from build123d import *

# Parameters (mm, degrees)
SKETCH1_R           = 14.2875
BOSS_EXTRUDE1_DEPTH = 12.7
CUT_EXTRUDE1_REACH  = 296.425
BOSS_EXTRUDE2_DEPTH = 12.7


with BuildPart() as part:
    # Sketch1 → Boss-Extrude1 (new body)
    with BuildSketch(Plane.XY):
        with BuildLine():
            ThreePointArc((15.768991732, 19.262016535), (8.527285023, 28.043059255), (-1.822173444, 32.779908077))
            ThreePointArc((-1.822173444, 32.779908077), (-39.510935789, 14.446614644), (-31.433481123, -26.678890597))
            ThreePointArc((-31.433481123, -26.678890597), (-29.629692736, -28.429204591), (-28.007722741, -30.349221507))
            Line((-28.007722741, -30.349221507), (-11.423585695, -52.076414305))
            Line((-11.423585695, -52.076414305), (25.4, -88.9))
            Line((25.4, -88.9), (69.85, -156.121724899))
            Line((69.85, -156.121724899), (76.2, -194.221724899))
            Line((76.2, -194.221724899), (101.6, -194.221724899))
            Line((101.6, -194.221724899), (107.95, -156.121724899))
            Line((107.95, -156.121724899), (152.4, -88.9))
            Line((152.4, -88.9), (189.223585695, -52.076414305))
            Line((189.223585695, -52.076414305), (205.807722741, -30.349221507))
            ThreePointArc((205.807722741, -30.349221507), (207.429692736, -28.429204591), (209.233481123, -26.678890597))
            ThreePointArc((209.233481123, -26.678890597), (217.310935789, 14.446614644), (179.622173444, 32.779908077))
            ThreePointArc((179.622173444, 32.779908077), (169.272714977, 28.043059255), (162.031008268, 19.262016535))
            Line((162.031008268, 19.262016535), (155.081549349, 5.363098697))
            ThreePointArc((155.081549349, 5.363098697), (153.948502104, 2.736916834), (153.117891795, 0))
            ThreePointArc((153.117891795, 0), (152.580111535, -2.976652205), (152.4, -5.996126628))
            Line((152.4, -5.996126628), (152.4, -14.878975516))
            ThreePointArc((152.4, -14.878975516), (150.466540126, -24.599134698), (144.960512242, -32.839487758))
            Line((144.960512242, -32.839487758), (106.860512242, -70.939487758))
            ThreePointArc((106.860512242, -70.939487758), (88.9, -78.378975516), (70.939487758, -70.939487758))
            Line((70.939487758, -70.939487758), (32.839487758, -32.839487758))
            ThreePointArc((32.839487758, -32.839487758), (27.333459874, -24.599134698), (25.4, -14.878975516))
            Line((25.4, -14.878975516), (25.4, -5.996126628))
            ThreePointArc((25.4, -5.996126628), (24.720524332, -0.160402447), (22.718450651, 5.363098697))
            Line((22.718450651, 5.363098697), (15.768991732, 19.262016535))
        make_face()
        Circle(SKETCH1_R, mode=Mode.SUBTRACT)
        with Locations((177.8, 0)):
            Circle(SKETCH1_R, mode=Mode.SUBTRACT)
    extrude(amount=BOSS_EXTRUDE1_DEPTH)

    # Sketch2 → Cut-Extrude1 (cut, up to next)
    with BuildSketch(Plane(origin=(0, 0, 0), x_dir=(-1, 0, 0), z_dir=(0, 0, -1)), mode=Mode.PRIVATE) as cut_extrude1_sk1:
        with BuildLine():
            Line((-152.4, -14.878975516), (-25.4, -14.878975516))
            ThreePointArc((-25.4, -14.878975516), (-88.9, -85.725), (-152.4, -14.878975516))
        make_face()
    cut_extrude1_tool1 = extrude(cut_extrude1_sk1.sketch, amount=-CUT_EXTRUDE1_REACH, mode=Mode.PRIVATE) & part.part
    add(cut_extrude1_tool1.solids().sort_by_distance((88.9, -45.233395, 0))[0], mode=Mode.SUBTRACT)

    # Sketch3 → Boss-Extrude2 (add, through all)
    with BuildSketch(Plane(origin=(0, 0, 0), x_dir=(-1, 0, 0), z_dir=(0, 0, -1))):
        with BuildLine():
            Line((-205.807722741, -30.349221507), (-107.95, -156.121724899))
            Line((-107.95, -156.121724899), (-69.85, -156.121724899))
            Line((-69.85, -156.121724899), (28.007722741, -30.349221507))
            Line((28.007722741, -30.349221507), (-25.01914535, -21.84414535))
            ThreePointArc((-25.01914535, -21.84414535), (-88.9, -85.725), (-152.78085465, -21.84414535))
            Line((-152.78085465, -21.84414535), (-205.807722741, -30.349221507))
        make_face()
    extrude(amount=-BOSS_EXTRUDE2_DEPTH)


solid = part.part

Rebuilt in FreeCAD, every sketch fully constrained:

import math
import FreeCAD as App
import Part
import Sketcher
Q = App.Units.Quantity

doc = App.newDocument("Part")
body = doc.addObject("PartDesign::Body", "Body")

sketch1 = body.newObject("Sketcher::SketchObject", "Sketch")
sketch1.AttachmentSupport = (doc.getObject("XY_Plane"), [""])
sketch1.MapMode = "FlatFace"
sketch1.addGeometry(Part.ArcOfCircle(Part.Circle(App.Vector(-7, 8, 0), App.Vector(0, 0, 1), 25), math.radians(27), math.radians(78)), False)
sketch1.addGeometry(Part.ArcOfCircle(Part.Circle(App.Vector(-9, -1, 0), App.Vector(0, 0, 1), 34), math.radians(78), math.radians(229)), False)
sketch1.addGeometry(Part.ArcOfCircle(Part.Circle(App.Vector(-48, -46, 0), App.Vector(0, 0, 1), 25), math.radians(37.35), math.radians(48.7)), False)
sketch1.addGeometry(Part.LineSegment(App.Vector(-28, -30, 0), App.Vector(-11, -52, 0)), False)
sketch1.addGeometry(Part.LineSegment(App.Vector(-11, -52, 0), App.Vector(25, -89, 0)), False)
sketch1.addGeometry(Part.LineSegment(App.Vector(25, -89, 0), App.Vector(70, -156, 0)), False)
sketch1.addGeometry(Part.LineSegment(App.Vector(70, -156, 0), App.Vector(76, -194, 0)), False)
sketch1.addGeometry(Part.LineSegment(App.Vector(76, -194, 0), App.Vector(102, -194, 0)), False)
sketch1.addGeometry(Part.LineSegment(App.Vector(102, -194, 0), App.Vector(108, -156, 0)), False)
sketch1.addGeometry(Part.LineSegment(App.Vector(108, -156, 0), App.Vector(152, -89, 0)), False)
sketch1.addGeometry(Part.LineSegment(App.Vector(152, -89, 0), App.Vector(189, -52, 0)), False)
sketch1.addGeometry(Part.LineSegment(App.Vector(189, -52, 0), App.Vector(206, -30, 0)), False)
sketch1.addGeometry(Part.ArcOfCircle(Part.Circle(App.Vector(226, -46, 0), App.Vector(0, 0, 1), 25), math.radians(131.3), math.radians(142.65)), False)
sketch1.addGeometry(Part.ArcOfCircle(Part.Circle(App.Vector(187, -1, 0), App.Vector(0, 0, 1), 34), math.radians(-49), math.radians(102)), False)
sketch1.addGeometry(Part.ArcOfCircle(Part.Circle(App.Vector(185, 8, 0), App.Vector(0, 0, 1), 25), math.radians(102), math.radians(153)), False)
sketch1.addGeometry(Part.LineSegment(App.Vector(162, 19, 0), App.Vector(155, 5, 0)), False)
sketch1.addGeometry(Part.ArcOfCircle(Part.Circle(App.Vector(178, -6, 0), App.Vector(0, 0, 1), 25), math.radians(153.43), math.radians(166.35)), False)
sketch1.addGeometry(Part.ArcOfCircle(Part.Circle(App.Vector(178, -6, 0), App.Vector(0, 0, 1), 25), math.radians(166.35), math.radians(180)), False)
sketch1.addGeometry(Part.LineSegment(App.Vector(152, -6, 0), App.Vector(152, -15, 0)), False)
sketch1.addGeometry(Part.ArcOfCircle(Part.Circle(App.Vector(127, -15, 0), App.Vector(0, 0, 1), 25), math.radians(-45), math.radians(0)), False)
sketch1.addGeometry(Part.LineSegment(App.Vector(145, -33, 0), App.Vector(107, -71, 0)), False)
sketch1.addGeometry(Part.ArcOfCircle(Part.Circle(App.Vector(89, -53, 0), App.Vector(0, 0, 1), 25), math.radians(-135), math.radians(-45)), False)
sketch1.addGeometry(Part.LineSegment(App.Vector(71, -71, 0), App.Vector(33, -33, 0)), False)
sketch1.addGeometry(Part.ArcOfCircle(Part.Circle(App.Vector(51, -15, 0), App.Vector(0, 0, 1), 25), math.radians(180), math.radians(225)), False)
sketch1.addGeometry(Part.LineSegment(App.Vector(25, -15, 0), App.Vector(25, -6, 0)), False)
sketch1.addGeometry(Part.ArcOfCircle(Part.Circle(App.Vector(0, -6, 0), App.Vector(0, 0, 1), 25), math.radians(0), math.radians(27)), False)
sketch1.addGeometry(Part.LineSegment(App.Vector(23, 5, 0), App.Vector(16, 19, 0)), False)
sketch1.addGeometry(Part.Circle(App.Vector(0, 0, 0), App.Vector(0, 0, 1), 14), False)
sketch1.addGeometry(Part.Circle(App.Vector(178, 0, 0), App.Vector(0, 0, 1), 14), False)
sketch1.addConstraint(Sketcher.Constraint("Tangent", 0, 2, 1, 1))
sketch1.addConstraint(Sketcher.Constraint("Tangent", 1, 2, 2, 2))
sketch1.addConstraint(Sketcher.Constraint("Tangent", 2, 1, 3, 1))
sketch1.addConstraint(Sketcher.Constraint("Coincident", 3, 2, 4, 1))
sketch1.addConstraint(Sketcher.Constraint("Coincident", 4, 2, 5, 1))
sketch1.addConstraint(Sketcher.Constraint("Coincident", 5, 2, 6, 1))
sketch1.addConstraint(Sketcher.Constraint("Coincident", 6, 2, 7, 1))
sketch1.addConstraint(Sketcher.Constraint("Coincident", 7, 2, 8, 1))
sketch1.addConstraint(Sketcher.Constraint("Coincident", 8, 2, 9, 1))
sketch1.addConstraint(Sketcher.Constraint("Coincident", 9, 2, 10, 1))
sketch1.addConstraint(Sketcher.Constraint("Coincident", 10, 2, 11, 1))
sketch1.addConstraint(Sketcher.Constraint("Tangent", 11, 2, 12, 2))
sketch1.addConstraint(Sketcher.Constraint("Tangent", 12, 1, 13, 1))
sketch1.addConstraint(Sketcher.Constraint("Tangent", 13, 2, 14, 1))
sketch1.addConstraint(Sketcher.Constraint("Tangent", 14, 2, 15, 1))
sketch1.addConstraint(Sketcher.Constraint("Tangent", 15, 2, 16, 1))
sketch1.addConstraint(Sketcher.Constraint("Tangent", 16, 2, 17, 1))
sketch1.addConstraint(Sketcher.Constraint("Tangent", 17, 2, 18, 1))
sketch1.addConstraint(Sketcher.Constraint("Tangent", 18, 2, 19, 2))
sketch1.addConstraint(Sketcher.Constraint("Tangent", 19, 1, 20, 1))
sketch1.addConstraint(Sketcher.Constraint("Tangent", 20, 2, 21, 2))
sketch1.addConstraint(Sketcher.Constraint("Tangent", 21, 1, 22, 1))
sketch1.addConstraint(Sketcher.Constraint("Tangent", 22, 2, 23, 2))
sketch1.addConstraint(Sketcher.Constraint("Tangent", 23, 1, 24, 1))
sketch1.addConstraint(Sketcher.Constraint("Tangent", 24, 2, 25, 1))
sketch1.addConstraint(Sketcher.Constraint("Tangent", 25, 2, 26, 1))
sketch1.addConstraint(Sketcher.Constraint("Tangent", 26, 2, 0, 1))
sketch1.addConstraint(Sketcher.Constraint("Horizontal", 7))
sketch1.addConstraint(Sketcher.Constraint("Vertical", 18))
sketch1.addConstraint(Sketcher.Constraint("Vertical", 24))
sketch1.addConstraint(Sketcher.Constraint("Coincident", 27, 3, -1, 1))
sketch1.addConstraint(Sketcher.Constraint("Equal", 0, 2))
sketch1.addConstraint(Sketcher.Constraint("Equal", 2, 12))
sketch1.addConstraint(Sketcher.Constraint("Equal", 1, 13))
sketch1.addConstraint(Sketcher.Constraint("Equal", 12, 14))
sketch1.addConstraint(Sketcher.Constraint("Equal", 14, 16))
sketch1.addConstraint(Sketcher.Constraint("Equal", 16, 17))
sketch1.addConstraint(Sketcher.Constraint("Equal", 17, 19))
sketch1.addConstraint(Sketcher.Constraint("Equal", 19, 21))
sketch1.addConstraint(Sketcher.Constraint("Equal", 21, 23))
sketch1.addConstraint(Sketcher.Constraint("Equal", 23, 25))
sketch1.addConstraint(Sketcher.Constraint("Equal", 27, 28))
sketch1.addConstraint(Sketcher.Constraint("PointOnObject", 25, 3, -2))
sketch1.addConstraint(Sketcher.Constraint("PointOnObject", 28, 3, -1))
sketch1.addConstraint(Sketcher.Constraint("PointOnObject", 16, 2, -1))
sketch1.addConstraint(Sketcher.Constraint("Perpendicular", 4, 10))
sketch1.addConstraint(Sketcher.Constraint("Parallel", 10, 20))
sketch1.addConstraint(Sketcher.Constraint("Perpendicular", 20, 22))
sketch1.addConstraint(Sketcher.Constraint("Horizontal", 2, 3, 12, 3))
sketch1.addConstraint(Sketcher.Constraint("Horizontal", 1, 3, 13, 3))
sketch1.addConstraint(Sketcher.Constraint("Horizontal", 0, 3, 14, 3))
sketch1.addConstraint(Sketcher.Constraint("Horizontal", 19, 3, 23, 3))
sketch1.addConstraint(Sketcher.Constraint("Horizontal", 17, 3, 25, 3))
sketch1.addConstraint(Sketcher.Constraint("Horizontal", 5, 2, 8, 2))
sketch1.addConstraint(Sketcher.Constraint("Horizontal", 4, 2, 9, 2))
sketch1.addConstraint(Sketcher.Constraint("Horizontal", 3, 2, 10, 2))
sketch1.addConstraint(Sketcher.Constraint("Horizontal", 2, 1, 11, 2))
sketch1.addConstraint(Sketcher.Constraint("Horizontal", 20, 2, 21, 1))
sketch1.addConstraint(Sketcher.Constraint("Horizontal", 15, 2, 25, 2))
sketch1.addConstraint(Sketcher.Constraint("Vertical", 17, 3, 28, 3))
sketch1.addConstraint(Sketcher.Constraint("Vertical", 9, 2, 17, 2))
sketch1.addConstraint(Sketcher.Constraint("Equal", 6, 8))
sketch1.addConstraint(Sketcher.Constraint("Equal", 5, 9))
sketch1.addConstraint(Sketcher.Constraint("Radius", 0, Q("1 in")))
sketch1.addConstraint(Sketcher.Constraint("DistanceX", 7, 1, 7, 2, Q("1 in")))
sketch1.addConstraint(Sketcher.Constraint("Diameter", 27, Q("1.125 in")))
sketch1.addConstraint(Sketcher.Constraint("DistanceX", -1, 1, 16, 3, Q("7 in")))
sketch1.addConstraint(Sketcher.Constraint("DistanceY", 4, 2, -1, 1, Q("3.5 in")))
sketch1.addConstraint(Sketcher.Constraint("DistanceY", 6, 2, 5, 2, Q("1.5 in")))
sketch1.addConstraint(Sketcher.Constraint("DistanceX", 5, 2, 8, 2, Q("1.5 in")))
sketch1.addConstraint(Sketcher.Constraint("Radius", 1, Q("34.356247 mm")))
sketch1.addConstraint(Sketcher.Constraint("DistanceY", 18, 2, 18, 1, Q("8.882849 mm")))
sketch1.addConstraint(Sketcher.Constraint("DistanceY", -1, 1, 15, 2, Q("5.363099 mm")))
sketch1.addConstraint(Sketcher.Constraint("DistanceX", 1, 2, 1, 3, Q("22.6761 mm")))
sketch1.addConstraint(Sketcher.Constraint("Distance", 5, Q("80.58885 mm")))
sketch1.addConstraint(Sketcher.Constraint("DistanceX", 0, 3, -1, 1, Q("6.949459 mm")))
sketch1.addConstraint(Sketcher.Constraint("DistanceY", -1, 1, 0, 3, Q("7.902791 mm")))
sketch1.addConstraint(Sketcher.Constraint("DistanceX", 1, 3, -1, 1, Q("8.757381 mm")))
sketch1.addConstraint(Sketcher.Constraint("DistanceY", 2, 1, -1, 1, Q("30.349222 mm")))
pad1 = body.newObject("PartDesign::Pad", "Pad")
pad1.Profile = sketch1
pad1.Length = Q("0.5 in")

sketch2 = body.newObject("Sketcher::SketchObject", "Sketch001")
sketch2.AttachmentSupport = (doc.getObject("XY_Plane"), [""])
sketch2.MapMode = "FlatFace"
sketch2.addGeometry(Part.LineSegment(App.Vector(25, -15, 0), App.Vector(152, -15, 0)), False)
sketch2.addGeometry(Part.ArcOfCircle(Part.Circle(App.Vector(89, -22, 0), App.Vector(0, 0, 1), 64), math.radians(174), math.radians(366)), False)
sketch2.addConstraint(Sketcher.Constraint("Coincident", 0, 1, 1, 1))
sketch2.addConstraint(Sketcher.Constraint("Coincident", 1, 2, 0, 2))
sketch2.addConstraint(Sketcher.Constraint("Horizontal", 0))
sketch2.addConstraint(Sketcher.Constraint("DistanceX", 0, 1, 0, 2, Q("5 in")))
sketch2.addConstraint(Sketcher.Constraint("DistanceX", -1, 1, 0, 1, Q("1 in")))
sketch2.addConstraint(Sketcher.Constraint("Radius", 1, Q("63.880855 mm")))
sketch2.addConstraint(Sketcher.Constraint("DistanceY", 1, 3, -1, 1, Q("21.844145 mm")))
pocket1 = body.newObject("PartDesign::Pocket", "Pocket")
pocket1.Profile = sketch2
pocket1.Length = Q("0.5 in")
pocket1.Reversed = True

sketch3 = body.newObject("Sketcher::SketchObject", "Sketch002")
sketch3.AttachmentSupport = (doc.getObject("XY_Plane"), [""])
sketch3.MapMode = "FlatFace"
sketch3.addGeometry(Part.LineSegment(App.Vector(206, -30, 0), App.Vector(108, -156, 0)), False)
sketch3.addGeometry(Part.LineSegment(App.Vector(108, -156, 0), App.Vector(70, -156, 0)), False)
sketch3.addGeometry(Part.LineSegment(App.Vector(70, -156, 0), App.Vector(-28, -30, 0)), False)
sketch3.addGeometry(Part.LineSegment(App.Vector(-28, -30, 0), App.Vector(25, -22, 0)), False)
sketch3.addGeometry(Part.ArcOfCircle(Part.Circle(App.Vector(89, -22, 0), App.Vector(0, 0, 1), 64), math.radians(180), math.radians(360)), False)
sketch3.addGeometry(Part.LineSegment(App.Vector(153, -22, 0), App.Vector(206, -30, 0)), False)
sketch3.addConstraint(Sketcher.Constraint("Coincident", 0, 2, 1, 1))
sketch3.addConstraint(Sketcher.Constraint("Coincident", 1, 2, 2, 1))
sketch3.addConstraint(Sketcher.Constraint("Coincident", 2, 2, 3, 1))
sketch3.addConstraint(Sketcher.Constraint("Coincident", 3, 2, 4, 1))
sketch3.addConstraint(Sketcher.Constraint("Coincident", 4, 2, 5, 1))
sketch3.addConstraint(Sketcher.Constraint("Coincident", 5, 2, 0, 1))
sketch3.addConstraint(Sketcher.Constraint("Horizontal", 1))
sketch3.addConstraint(Sketcher.Constraint("Horizontal", 4, 3, 3, 2))
sketch3.addConstraint(Sketcher.Constraint("Horizontal", 3, 2, 4, 2))
sketch3.addConstraint(Sketcher.Constraint("Horizontal", 2, 2, 5, 2))
sketch3.addConstraint(Sketcher.Constraint("Equal", 0, 2))
sketch3.addConstraint(Sketcher.Constraint("Equal", 3, 5))
sketch3.addConstraint(Sketcher.Constraint("DistanceX", 1, 2, 1, 1, Q("1.5 in")))
sketch3.addConstraint(Sketcher.Constraint("DistanceX", -1, 1, 4, 3, Q("3.5 in")))
sketch3.addConstraint(Sketcher.Constraint("Radius", 4, Q("63.880855 mm")))
sketch3.addConstraint(Sketcher.Constraint("Distance", 3, Q("53.704609 mm")))
sketch3.addConstraint(Sketcher.Constraint("DistanceY", 2, 2, -1, 1, Q("30.349222 mm")))
sketch3.addConstraint(Sketcher.Constraint("DistanceY", 0, 2, 4, 3, Q("134.27758 mm")))
sketch3.addConstraint(Sketcher.Constraint("DistanceX", 2, 2, 3, 2, Q("53.026868 mm")))
pad2 = body.newObject("PartDesign::Pad", "Pad001")
pad2.Profile = sketch3
pad2.Type = "UpToLast"

doc.recompute()
